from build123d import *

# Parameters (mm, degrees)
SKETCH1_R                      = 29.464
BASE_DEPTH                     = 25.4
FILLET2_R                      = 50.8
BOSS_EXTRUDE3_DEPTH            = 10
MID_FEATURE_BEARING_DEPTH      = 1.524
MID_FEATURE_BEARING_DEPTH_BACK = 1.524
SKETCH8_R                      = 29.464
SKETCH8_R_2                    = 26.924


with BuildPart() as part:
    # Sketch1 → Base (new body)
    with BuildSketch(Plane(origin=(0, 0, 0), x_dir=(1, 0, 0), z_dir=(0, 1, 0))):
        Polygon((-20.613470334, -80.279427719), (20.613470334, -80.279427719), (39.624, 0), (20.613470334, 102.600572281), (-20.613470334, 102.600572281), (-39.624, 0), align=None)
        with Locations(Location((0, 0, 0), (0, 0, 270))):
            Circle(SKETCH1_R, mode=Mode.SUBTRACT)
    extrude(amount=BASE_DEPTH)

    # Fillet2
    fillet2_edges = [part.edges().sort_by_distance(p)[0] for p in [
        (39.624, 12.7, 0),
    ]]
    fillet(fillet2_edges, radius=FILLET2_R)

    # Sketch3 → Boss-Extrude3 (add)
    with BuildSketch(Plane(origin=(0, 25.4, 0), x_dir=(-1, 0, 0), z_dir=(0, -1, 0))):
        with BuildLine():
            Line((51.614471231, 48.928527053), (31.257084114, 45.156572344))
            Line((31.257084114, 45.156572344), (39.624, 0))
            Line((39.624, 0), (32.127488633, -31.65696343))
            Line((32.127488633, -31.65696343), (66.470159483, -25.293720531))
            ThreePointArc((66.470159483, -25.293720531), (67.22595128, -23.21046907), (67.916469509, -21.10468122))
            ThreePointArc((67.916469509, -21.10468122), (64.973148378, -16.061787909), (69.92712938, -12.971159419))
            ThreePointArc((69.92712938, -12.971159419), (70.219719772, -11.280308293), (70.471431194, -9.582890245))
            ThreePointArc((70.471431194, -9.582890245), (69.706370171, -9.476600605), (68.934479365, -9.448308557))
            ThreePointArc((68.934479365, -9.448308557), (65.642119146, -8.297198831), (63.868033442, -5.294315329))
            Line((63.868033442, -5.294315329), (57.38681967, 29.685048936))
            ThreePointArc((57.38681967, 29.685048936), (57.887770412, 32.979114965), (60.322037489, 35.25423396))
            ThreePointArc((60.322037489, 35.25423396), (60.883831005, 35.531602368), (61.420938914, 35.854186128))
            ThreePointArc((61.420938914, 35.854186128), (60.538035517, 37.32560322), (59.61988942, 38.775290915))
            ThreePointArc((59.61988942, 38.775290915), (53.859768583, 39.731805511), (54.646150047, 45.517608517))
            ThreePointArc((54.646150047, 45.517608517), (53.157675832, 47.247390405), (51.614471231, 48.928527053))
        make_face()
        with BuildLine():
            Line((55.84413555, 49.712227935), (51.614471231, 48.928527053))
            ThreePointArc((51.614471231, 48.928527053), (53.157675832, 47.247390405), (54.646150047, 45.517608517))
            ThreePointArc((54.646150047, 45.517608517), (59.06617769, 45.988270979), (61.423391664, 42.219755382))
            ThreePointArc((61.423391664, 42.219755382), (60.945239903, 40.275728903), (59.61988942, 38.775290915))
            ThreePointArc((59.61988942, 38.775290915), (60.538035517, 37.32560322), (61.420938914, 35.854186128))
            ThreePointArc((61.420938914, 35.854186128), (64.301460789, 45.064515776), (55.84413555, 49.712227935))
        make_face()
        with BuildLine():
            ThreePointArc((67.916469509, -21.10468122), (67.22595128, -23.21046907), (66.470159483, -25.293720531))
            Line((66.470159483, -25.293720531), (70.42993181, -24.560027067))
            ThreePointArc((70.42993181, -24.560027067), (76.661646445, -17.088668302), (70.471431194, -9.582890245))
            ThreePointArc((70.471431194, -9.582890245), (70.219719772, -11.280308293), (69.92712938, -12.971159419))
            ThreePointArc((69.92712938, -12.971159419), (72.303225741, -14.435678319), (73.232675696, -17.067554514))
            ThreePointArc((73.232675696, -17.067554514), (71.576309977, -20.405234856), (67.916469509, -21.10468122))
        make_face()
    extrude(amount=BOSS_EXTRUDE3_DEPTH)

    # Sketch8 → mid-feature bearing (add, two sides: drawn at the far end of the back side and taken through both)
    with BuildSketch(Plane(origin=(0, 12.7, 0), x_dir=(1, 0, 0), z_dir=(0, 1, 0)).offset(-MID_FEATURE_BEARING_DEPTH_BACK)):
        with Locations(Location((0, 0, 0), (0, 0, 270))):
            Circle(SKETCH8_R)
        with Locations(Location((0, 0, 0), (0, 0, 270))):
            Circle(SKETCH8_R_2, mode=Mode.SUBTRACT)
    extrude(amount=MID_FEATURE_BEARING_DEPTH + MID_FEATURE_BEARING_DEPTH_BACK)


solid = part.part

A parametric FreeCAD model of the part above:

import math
import FreeCAD as App
import Part
import Sketcher
from FreeCAD import Vector
Q = App.Units.Quantity


def edges_at(feature, points):
    """Names of the edges that pass closest to the given points."""
    edges = feature.Shape.Edges
    near = lambda p: min(range(len(edges)), key=lambda i: edges[i].distToShape(Part.Vertex(*p))[0])
    return sorted({f"Edge{near(p) + 1}" for p in points})

doc = App.newDocument("Part")
body = doc.addObject("PartDesign::Body", "Body")

# Sketch on XZ plane
sketch1 = body.newObject("Sketcher::SketchObject", "Sketch")
sketch1.AttachmentSupport = (doc.getObject("XZ_Plane"), [""])
sketch1.MapMode = "FlatFace"
sketch1.addGeometry(Part.LineSegment(Vector(-21, 80, 0), Vector(21, 80, 0)), False)
sketch1.addGeometry(Part.LineSegment(Vector(21, 80, 0), Vector(40, 0, 0)), False)
sketch1.addGeometry(Part.LineSegment(Vector(40, 0, 0), Vector(21, -103, 0)), False)
sketch1.addGeometry(Part.LineSegment(Vector(21, -103, 0), Vector(-21, -103, 0)), False)
sketch1.addGeometry(Part.LineSegment(Vector(-21, -103, 0), Vector(-40, 0, 0)), False)
sketch1.addGeometry(Part.LineSegment(Vector(-40, 0, 0), Vector(-21, 80, 0)), False)
sketch1.addGeometry(Part.Circle(Vector(0, 0, 0), Vector(0, 0, 1), 29), False)
sketch1.addConstraint(Sketcher.Constraint("Coincident", 0, 2, 1, 1))
sketch1.addConstraint(Sketcher.Constraint("Coincident", 1, 2, 2, 1))
sketch1.addConstraint(Sketcher.Constraint("Coincident", 2, 2, 3, 1))
sketch1.addConstraint(Sketcher.Constraint("Coincident", 3, 2, 4, 1))
sketch1.addConstraint(Sketcher.Constraint("Coincident", 4, 2, 5, 1))
sketch1.addConstraint(Sketcher.Constraint("Coincident", 5, 2, 0, 1))
sketch1.addConstraint(Sketcher.Constraint("Horizontal", 0))
sketch1.addConstraint(Sketcher.Constraint("Horizontal", 3))
sketch1.addConstraint(Sketcher.Constraint("Coincident", 6, 3, -1, 1))
sketch1.addConstraint(Sketcher.Constraint("Symmetric", 1, 2, 4, 2, -1, 1))
sketch1.addConstraint(Sketcher.Constraint("PointOnObject", 1, 2, -1))
sketch1.addConstraint(Sketcher.Constraint("Vertical", 0, 2, 2, 2))
sketch1.addConstraint(Sketcher.Constraint("Vertical", 3, 2, 5, 2))
sketch1.addConstraint(Sketcher.Constraint("Equal", 2, 4))
sketch1.addConstraint(Sketcher.Constraint("Diameter", 6, Q("2.32 in")))
sketch1.addConstraint(Sketcher.Constraint("DistanceY", 2, 2, 0, 2, Q("7.2 in")))
sketch1.addConstraint(Sketcher.Constraint("DistanceX", -1, 1, 1, 2, Q("1.56 in")))
sketch1.addConstraint(Sketcher.Constraint("DistanceX", 0, 1, 0, 2, 41.226941))
sketch1.addConstraint(Sketcher.Constraint("Distance", 2, 104.34691))
pad1 = body.newObject("PartDesign::Pad", "Pad")
pad1.Profile = sketch1
pad1.Length = Q("1 in")
pad1.Reversed = True
doc.recompute()

fillet = body.newObject("PartDesign::Fillet", "Fillet")
fillet.Base = (pad1, edges_at(pad1, [(39.624, 12.7, 0)]))
fillet.Radius = Q("2 in")

# Sketch on XZ plane
sketch2 = body.newObject("Sketcher::SketchObject", "Sketch001")
sketch2.AttachmentSupport = (doc.getObject("XZ_Plane"), [""])
sketch2.MapMode = "FlatFace"
sketch2.AttachmentOffset = App.Placement(Vector(0, 0, -1 * 25.4), App.Rotation())
sketch2.addGeometry(Part.LineSegment(Vector(-51.6, -48.9, 0), Vector(-31.3, -45.2, 0)), False)
sketch2.addGeometry(Part.LineSegment(Vector(-31.3, -45.2, 0), Vector(-39.6, 0, 0)), False)
sketch2.addGeometry(Part.LineSegment(Vector(-39.6, 0, 0), Vector(-32.1, 31.7, 0)), False)
sketch2.addGeometry(Part.LineSegment(Vector(-32.1, 31.7, 0), Vector(-66.5, 25.3, 0)), False)
sketch2.addGeometry(Part.LineSegment(Vector(-66.5, 25.3, 0), Vector(-70.4, 24.6, 0)), False)
sketch2.addGeometry(Part.ArcOfCircle(Part.Circle(Vector(-69, 17.1, 0), Vector(0, 0, 1), 7.6), math.radians(100), math.radians(259)), False)
sketch2.addGeometry(Part.ArcOfCircle(Part.Circle(Vector(-69, 17.1, 0), Vector(0, 0, 1), 7.6), math.radians(-100.81), math.radians(-89.19)), False)
sketch2.addGeometry(Part.ArcOfCircle(Part.Circle(Vector(-68.9, 4.4, 0), Vector(0, 0, 1), 5.1), math.radians(10), math.radians(91)), False)
sketch2.addGeometry(Part.LineSegment(Vector(-63.9, 5.3, 0), Vector(-57.4, -29.7, 0)), False)
sketch2.addGeometry(Part.ArcOfCircle(Part.Circle(Vector(-62.4, -30.6, 0), Vector(0, 0, 1), 5.1), math.radians(-66), math.radians(10)), False)
sketch2.addGeometry(Part.ArcOfCircle(Part.Circle(Vector(-57.2, -42.2, 0), Vector(0, 0, 1), 7.6), math.radians(113.92), math.radians(123.34)), False)
sketch2.addGeometry(Part.ArcOfCircle(Part.Circle(Vector(-57.2, -42.2, 0), Vector(0, 0, 1), 7.6), math.radians(123), math.radians(280)), False)
sketch2.addGeometry(Part.LineSegment(Vector(-55.8, -49.7, 0), Vector(-51.6, -48.9, 0)), False)
sketch2.addGeometry(Part.ArcOfCircle(Part.Circle(Vector(-69, 17.1, 0), Vector(0, 0, 1), 4.2), math.radians(-102), math.radians(74)), False)
sketch2.addGeometry(Part.ArcOfCircle(Part.Circle(Vector(-69, 17.1, 0), Vector(0, 0, 1), 4.2), math.radians(180), math.radians(258)), False)
sketch2.addGeometry(Part.ArcOfCircle(Part.Circle(Vector(-69, 17.1, 0), Vector(0, 0, 1), 4.2), math.radians(74), math.radians(180)), False)
sketch2.addGeometry(Part.ArcOfCircle(Part.Circle(Vector(-57.2, -42.2, 0), Vector(0, 0, 1), 4.2), math.radians(-52), math.radians(125)), False)
sketch2.addGeometry(Part.ArcOfCircle(Part.Circle(Vector(-57.2, -42.2, 0), Vector(0, 0, 1), 4.2), math.radians(-180), math.radians(-52)), False)
sketch2.addGeometry(Part.ArcOfCircle(Part.Circle(Vector(-57.2, -42.2, 0), Vector(0, 0, 1), 4.2), math.radians(125), math.radians(180)), False)
sketch2.addConstraint(Sketcher.Constraint("Coincident", 0, 2, 1, 1))
sketch2.addConstraint(Sketcher.Constraint("Coincident", 1, 2, 2, 1))
sketch2.addConstraint(Sketcher.Constraint("Coincident", 2, 2, 3, 1))
sketch2.addConstraint(Sketcher.Constraint("Coincident", 3, 2, 4, 1))
sketch2.addConstraint(Sketcher.Constraint("Tangent", 4, 2, 5, 1))
sketch2.addConstraint(Sketcher.Constraint("Tangent", 5, 2, 6, 1))
sketch2.addConstraint(Sketcher.Constraint("Tangent", 6, 2, 7, 2))
sketch2.addConstraint(Sketcher.Constraint("Tangent", 7, 1, 8, 1))
sketch2.addConstraint(Sketcher.Constraint("Tangent", 8, 2, 9, 2))
sketch2.addConstraint(Sketcher.Constraint("Tangent", 9, 1, 10, 1))
sketch2.addConstraint(Sketcher.Constraint("Tangent", 10, 2, 11, 1))
sketch2.addConstraint(Sketcher.Constraint("Tangent", 11, 2, 12, 1))
sketch2.addConstraint(Sketcher.Constraint("Coincident", 12, 2, 0, 1))
sketch2.addConstraint(Sketcher.Constraint("Tangent", 13, 1, 14, 2))
sketch2.addConstraint(Sketcher.Constraint("Tangent", 14, 1, 15, 2))
sketch2.addConstraint(Sketcher.Constraint("Tangent", 15, 1, 13, 2))
sketch2.addConstraint(Sketcher.Constraint("Tangent", 16, 1, 17, 2))
sketch2.addConstraint(Sketcher.Constraint("Tangent", 17, 1, 18, 2))
sketch2.addConstraint(Sketcher.Constraint("Tangent", 18, 1, 16, 2))
sketch2.addConstraint(Sketcher.Constraint("Coincident", 13, 3, 5, 3))
sketch2.addConstraint(Sketcher.Constraint("Coincident", 16, 3, 10, 3))
sketch2.addConstraint(Sketcher.Constraint("Equal", 5, 6))
sketch2.addConstraint(Sketcher.Constraint("Equal", 7, 9))
sketch2.addConstraint(Sketcher.Constraint("Equal", 6, 10))
sketch2.addConstraint(Sketcher.Constraint("Equal", 10, 11))
sketch2.addConstraint(Sketcher.Constraint("Equal", 15, 16))
sketch2.addConstraint(Sketcher.Constraint("PointOnObject", 1, 2, -1))
sketch2.addConstraint(Sketcher.Constraint("Perpendicular", 0, 1))
sketch2.addConstraint(Sketcher.Constraint("Perpendicular", 1, 3))
sketch2.addConstraint(Sketcher.Constraint("Parallel", 3, 4))
sketch2.addConstraint(Sketcher.Constraint("Perpendicular", 4, 8))
sketch2.addConstraint(Sketcher.Constraint("Perpendicular", 8, 12))
sketch2.addConstraint(Sketcher.Constraint("Horizontal", 15, 3, 14, 1))
sketch2.addConstraint(Sketcher.Constraint("Horizontal", 18, 3, 17, 1))
sketch2.addConstraint(Sketcher.Constraint("Radius", 5, Q("0.3 in")))
sketch2.addConstraint(Sketcher.Constraint("Radius", 7, Q("0.2 in")))
sketch2.addConstraint(Sketcher.Constraint("Radius", 13, Q("0.165 in")))
sketch2.addConstraint(Sketcher.Constraint("DistanceX", 1, 2, -1, 1, Q("1.56 in")))
sketch2.addConstraint(Sketcher.Constraint("DistanceX", 9, 3, -1, 1, 62.381801))
sketch2.addConstraint(Sketcher.Constraint("DistanceX", 10, 2, 9, 1, 1.098901))
sketch2.addConstraint(Sketcher.Constraint("DistanceY", 11, 2, 12, 2, 0.783701))
sketch2.addConstraint(Sketcher.Constraint("DistanceX", 5, 2, 13, 1, 0.544302))
sketch2.addConstraint(Sketcher.Constraint("Distance", 1, 45.925171))
sketch2.addConstraint(Sketcher.Constraint("Distance", 2, 32.532461))
sketch2.addConstraint(Sketcher.Constraint("Distance", 3, 34.927209))
sketch2.addConstraint(Sketcher.Constraint("Distance", 4, 4.027171))
sketch2.addConstraint(Sketcher.Constraint("Distance", 8, 35.574739))
sketch2.addConstraint(Sketcher.Constraint("DistanceY", -1, 1, 7, 3, 4.368811))
sketch2.addConstraint(Sketcher.Constraint("DistanceX", 10, 3, -1, 1, 57.232392))
sketch2.addConstraint(Sketcher.Constraint("DistanceX", 5, 2, -1, 1, 70.471431))
sketch2.addConstraint(Sketcher.Constraint("DistanceX", 15, 1, -1, 1, 67.91647))
sketch2.addConstraint(Sketcher.Constraint("DistanceX", 16, 1, -1, 1, 54.64615))
sketch2.addConstraint(Sketcher.Constraint("DistanceX", 18, 1, -1, 1, 59.619889))
pad2 = body.newObject("PartDesign::Pad", "Pad001")
pad2.Profile = sketch2
pad2.Length = 10

# Sketch on XZ plane
sketch3 = body.newObject("Sketcher::SketchObject", "Sketch002")
sketch3.AttachmentSupport = (doc.getObject("XZ_Plane"), [""])
sketch3.MapMode = "FlatFace"
sketch3.AttachmentOffset = App.Placement(Vector(0, 0, -0.5 * 25.4), App.Rotation())
sketch3.addGeometry(Part.Circle(Vector(0, 0, 0), Vector(0, 0, 1), 29), False)
sketch3.addGeometry(Part.Circle(Vector(0, 0, 0), Vector(0, 0, 1), 27), False)
sketch3.addConstraint(Sketcher.Constraint("Coincident", 0, 3, -1, 1))
sketch3.addConstraint(Sketcher.Constraint("Coincident", 1, 3, -1, 1))
sketch3.addConstraint(Sketcher.Constraint("Diameter", 0, Q("2.32 in")))
sketch3.addConstraint(Sketcher.Constraint("Diameter", 1, Q("2.12 in")))
pad3 = body.newObject("PartDesign::Pad", "Pad002")
pad3.Profile = sketch3
pad3.Type = "TwoLengths"
pad3.Length = Q("0.06 in")
pad3.Length2 = Q("0.06 in")
pad3.Reversed = True

doc.recompute()
